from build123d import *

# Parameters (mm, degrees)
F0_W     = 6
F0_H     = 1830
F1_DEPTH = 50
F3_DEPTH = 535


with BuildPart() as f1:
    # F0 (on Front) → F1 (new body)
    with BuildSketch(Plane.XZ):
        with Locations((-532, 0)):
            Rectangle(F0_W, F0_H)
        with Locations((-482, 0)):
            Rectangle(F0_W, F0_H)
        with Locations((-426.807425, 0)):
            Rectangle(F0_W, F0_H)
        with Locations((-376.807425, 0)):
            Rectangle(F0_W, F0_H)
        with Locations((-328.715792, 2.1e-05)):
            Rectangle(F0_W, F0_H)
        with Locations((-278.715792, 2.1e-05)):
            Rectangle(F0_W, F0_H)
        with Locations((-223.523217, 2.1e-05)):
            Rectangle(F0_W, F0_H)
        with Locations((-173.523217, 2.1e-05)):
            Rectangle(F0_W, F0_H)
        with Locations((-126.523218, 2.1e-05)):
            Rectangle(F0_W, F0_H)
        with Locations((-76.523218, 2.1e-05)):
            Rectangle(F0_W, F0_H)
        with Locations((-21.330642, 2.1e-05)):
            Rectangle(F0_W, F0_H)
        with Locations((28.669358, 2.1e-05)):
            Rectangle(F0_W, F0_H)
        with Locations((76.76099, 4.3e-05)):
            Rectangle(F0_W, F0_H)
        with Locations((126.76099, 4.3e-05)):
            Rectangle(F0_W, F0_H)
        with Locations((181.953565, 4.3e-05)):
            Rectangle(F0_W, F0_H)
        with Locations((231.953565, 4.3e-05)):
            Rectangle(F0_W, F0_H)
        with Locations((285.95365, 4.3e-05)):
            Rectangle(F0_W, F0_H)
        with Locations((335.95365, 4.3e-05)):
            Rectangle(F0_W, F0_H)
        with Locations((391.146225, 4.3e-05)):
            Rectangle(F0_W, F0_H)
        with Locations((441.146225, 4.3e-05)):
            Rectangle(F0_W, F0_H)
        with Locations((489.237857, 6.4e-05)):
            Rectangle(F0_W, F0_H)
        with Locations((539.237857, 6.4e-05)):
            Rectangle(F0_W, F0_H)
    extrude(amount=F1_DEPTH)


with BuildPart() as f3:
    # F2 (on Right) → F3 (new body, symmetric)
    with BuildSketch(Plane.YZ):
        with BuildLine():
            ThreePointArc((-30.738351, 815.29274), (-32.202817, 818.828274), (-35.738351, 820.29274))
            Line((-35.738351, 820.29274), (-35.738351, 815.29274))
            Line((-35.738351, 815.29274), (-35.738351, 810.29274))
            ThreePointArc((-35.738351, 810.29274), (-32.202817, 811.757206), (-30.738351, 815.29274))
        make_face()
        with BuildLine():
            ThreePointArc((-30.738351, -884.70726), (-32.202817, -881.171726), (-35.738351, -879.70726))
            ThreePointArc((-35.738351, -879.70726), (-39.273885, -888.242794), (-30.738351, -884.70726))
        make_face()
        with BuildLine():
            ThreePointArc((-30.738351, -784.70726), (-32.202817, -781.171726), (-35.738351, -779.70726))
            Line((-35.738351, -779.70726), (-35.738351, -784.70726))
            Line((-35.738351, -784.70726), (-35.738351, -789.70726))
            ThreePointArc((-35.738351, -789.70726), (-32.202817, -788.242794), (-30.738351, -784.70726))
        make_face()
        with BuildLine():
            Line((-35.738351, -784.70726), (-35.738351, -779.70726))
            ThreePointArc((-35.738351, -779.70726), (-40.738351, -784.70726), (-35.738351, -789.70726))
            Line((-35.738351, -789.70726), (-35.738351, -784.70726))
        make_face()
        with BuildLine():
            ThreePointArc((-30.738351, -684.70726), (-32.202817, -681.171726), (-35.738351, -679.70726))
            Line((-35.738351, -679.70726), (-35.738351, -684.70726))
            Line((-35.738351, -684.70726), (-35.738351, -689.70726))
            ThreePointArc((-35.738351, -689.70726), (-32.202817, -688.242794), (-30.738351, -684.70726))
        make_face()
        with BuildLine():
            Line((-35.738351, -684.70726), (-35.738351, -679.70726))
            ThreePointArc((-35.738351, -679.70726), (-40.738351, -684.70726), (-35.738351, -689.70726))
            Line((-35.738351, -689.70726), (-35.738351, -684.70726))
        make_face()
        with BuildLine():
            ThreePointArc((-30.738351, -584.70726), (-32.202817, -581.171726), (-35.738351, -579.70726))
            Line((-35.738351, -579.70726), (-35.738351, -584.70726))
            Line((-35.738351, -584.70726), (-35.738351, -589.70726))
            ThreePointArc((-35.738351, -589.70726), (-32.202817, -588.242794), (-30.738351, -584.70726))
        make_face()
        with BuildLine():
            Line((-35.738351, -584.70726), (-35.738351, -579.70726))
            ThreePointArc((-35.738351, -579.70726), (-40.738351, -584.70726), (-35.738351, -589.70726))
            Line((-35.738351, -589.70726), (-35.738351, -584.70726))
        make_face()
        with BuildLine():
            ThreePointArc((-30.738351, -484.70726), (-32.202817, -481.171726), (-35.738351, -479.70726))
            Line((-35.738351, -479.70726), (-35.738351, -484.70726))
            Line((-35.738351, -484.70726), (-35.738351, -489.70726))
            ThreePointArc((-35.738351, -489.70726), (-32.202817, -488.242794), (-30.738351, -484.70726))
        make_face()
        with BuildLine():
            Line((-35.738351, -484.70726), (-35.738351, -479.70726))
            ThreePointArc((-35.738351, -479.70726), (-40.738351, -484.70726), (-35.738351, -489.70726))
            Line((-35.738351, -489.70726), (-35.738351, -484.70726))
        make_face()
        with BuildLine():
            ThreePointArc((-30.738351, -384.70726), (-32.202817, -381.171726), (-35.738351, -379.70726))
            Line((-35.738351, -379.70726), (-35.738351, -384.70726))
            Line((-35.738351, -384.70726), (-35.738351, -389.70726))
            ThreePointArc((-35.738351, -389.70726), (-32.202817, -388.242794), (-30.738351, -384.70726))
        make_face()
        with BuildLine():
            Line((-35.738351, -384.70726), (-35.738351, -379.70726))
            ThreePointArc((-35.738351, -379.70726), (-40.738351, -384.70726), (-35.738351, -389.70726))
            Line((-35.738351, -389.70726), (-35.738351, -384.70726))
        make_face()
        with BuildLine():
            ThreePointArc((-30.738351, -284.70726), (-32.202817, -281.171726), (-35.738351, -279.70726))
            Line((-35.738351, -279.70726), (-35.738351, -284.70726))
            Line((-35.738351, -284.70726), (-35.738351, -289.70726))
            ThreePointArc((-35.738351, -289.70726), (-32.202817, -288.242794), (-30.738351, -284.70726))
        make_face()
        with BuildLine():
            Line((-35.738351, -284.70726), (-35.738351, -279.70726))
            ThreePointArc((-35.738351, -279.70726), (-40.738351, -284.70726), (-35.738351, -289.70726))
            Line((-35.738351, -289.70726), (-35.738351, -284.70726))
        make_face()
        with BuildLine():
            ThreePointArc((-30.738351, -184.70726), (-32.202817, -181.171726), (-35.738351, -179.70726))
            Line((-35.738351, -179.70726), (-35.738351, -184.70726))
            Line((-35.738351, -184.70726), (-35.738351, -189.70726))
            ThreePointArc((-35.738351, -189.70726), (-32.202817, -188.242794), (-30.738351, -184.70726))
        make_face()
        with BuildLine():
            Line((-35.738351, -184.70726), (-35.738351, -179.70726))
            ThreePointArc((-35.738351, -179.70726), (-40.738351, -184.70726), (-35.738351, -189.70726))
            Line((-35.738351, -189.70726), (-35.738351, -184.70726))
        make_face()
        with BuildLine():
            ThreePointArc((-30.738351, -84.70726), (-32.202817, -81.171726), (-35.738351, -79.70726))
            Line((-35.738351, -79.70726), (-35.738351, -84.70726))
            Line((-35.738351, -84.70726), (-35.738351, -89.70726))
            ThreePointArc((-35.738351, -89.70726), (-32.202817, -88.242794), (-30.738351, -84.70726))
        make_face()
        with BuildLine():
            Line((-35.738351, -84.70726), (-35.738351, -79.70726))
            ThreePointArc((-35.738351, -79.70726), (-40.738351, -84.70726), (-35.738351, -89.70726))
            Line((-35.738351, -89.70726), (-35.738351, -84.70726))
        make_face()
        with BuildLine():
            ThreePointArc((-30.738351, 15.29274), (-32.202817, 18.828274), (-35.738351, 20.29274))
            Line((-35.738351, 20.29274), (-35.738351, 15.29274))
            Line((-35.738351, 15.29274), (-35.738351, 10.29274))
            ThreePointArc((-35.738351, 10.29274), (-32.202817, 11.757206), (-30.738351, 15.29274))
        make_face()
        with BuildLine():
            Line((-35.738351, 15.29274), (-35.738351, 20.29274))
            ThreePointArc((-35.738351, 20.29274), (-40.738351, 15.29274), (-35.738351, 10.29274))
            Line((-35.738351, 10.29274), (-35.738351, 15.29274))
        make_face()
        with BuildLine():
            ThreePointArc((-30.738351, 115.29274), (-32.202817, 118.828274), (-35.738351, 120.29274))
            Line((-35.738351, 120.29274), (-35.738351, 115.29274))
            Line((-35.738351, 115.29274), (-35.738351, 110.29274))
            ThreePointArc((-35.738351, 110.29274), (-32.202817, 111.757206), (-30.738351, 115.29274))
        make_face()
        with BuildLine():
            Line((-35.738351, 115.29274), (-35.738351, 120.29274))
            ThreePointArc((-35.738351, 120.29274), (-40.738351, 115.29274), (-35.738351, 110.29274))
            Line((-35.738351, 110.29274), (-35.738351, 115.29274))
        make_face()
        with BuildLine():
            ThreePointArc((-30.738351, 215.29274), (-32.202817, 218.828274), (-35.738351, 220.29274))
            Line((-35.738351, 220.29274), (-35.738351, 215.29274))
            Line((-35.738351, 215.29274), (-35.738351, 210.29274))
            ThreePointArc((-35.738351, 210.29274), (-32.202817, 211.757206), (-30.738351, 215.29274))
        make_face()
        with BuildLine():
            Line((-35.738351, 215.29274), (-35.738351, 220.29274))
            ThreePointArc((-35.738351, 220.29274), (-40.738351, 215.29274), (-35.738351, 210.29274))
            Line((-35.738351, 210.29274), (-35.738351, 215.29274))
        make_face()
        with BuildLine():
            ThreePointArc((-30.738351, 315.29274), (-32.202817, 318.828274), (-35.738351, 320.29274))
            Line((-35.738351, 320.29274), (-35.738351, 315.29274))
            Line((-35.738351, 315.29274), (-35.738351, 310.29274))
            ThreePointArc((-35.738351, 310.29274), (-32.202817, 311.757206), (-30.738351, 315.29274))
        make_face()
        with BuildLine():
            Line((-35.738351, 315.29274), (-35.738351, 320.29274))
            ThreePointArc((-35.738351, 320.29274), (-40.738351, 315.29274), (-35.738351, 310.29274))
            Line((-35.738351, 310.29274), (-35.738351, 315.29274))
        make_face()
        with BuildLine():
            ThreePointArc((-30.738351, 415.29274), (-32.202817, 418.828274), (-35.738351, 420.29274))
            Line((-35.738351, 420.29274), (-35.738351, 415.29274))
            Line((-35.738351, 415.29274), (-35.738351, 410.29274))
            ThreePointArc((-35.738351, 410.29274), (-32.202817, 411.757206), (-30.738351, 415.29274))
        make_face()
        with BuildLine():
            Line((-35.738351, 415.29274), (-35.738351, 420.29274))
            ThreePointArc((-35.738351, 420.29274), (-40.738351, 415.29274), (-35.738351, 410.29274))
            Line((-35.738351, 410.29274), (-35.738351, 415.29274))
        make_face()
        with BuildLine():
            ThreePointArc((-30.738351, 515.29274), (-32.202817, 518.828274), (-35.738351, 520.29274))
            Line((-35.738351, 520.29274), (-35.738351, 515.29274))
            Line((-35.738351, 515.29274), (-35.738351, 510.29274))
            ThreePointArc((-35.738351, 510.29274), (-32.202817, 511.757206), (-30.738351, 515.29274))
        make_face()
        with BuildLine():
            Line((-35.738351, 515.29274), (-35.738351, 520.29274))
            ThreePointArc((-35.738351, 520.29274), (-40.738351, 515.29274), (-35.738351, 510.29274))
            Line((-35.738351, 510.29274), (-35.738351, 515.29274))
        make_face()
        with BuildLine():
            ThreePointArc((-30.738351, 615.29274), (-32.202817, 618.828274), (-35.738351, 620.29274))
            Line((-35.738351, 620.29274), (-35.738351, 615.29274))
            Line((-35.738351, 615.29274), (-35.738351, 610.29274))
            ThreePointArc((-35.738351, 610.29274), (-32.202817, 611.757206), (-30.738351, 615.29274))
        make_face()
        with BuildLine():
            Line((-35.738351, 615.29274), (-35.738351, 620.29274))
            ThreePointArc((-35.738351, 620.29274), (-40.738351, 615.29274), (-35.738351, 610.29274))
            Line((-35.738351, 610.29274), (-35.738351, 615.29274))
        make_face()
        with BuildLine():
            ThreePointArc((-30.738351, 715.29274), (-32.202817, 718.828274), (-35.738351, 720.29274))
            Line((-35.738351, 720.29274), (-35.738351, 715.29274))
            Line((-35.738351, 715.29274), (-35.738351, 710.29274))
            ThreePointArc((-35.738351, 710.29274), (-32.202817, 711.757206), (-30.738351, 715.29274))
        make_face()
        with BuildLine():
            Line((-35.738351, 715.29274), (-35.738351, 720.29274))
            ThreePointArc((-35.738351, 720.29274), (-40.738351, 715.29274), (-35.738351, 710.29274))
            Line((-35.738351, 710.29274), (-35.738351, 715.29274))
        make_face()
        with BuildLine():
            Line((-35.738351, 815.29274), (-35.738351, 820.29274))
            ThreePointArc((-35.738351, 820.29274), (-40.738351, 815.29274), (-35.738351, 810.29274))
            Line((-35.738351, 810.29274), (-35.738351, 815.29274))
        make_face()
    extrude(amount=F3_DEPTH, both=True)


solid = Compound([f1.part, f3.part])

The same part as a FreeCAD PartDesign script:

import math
import FreeCAD as App
import Part
import Sketcher

doc = App.newDocument("Part")
body = doc.addObject("PartDesign::Body", "Body")
body.AllowCompound = True

# Sketch on XZ plane
sketch1 = body.newObject("Sketcher::SketchObject", "Sketch")
sketch1.AttachmentSupport = (doc.getObject("XZ_Plane"), [""])
sketch1.MapMode = "FlatFace"
sketch1.addGeometry([
    Part.LineSegment(App.Vector(-535, 915, 0), App.Vector(-535, -915, 0)),  # 0
    Part.LineSegment(App.Vector(-535, -915, 0), App.Vector(-529, -915, 0)),  # 1
    Part.LineSegment(App.Vector(-529, -915, 0), App.Vector(-529, 915, 0)),  # 2
    Part.LineSegment(App.Vector(-529, 915, 0), App.Vector(-535, 915, 0)),  # 3
    Part.LineSegment(App.Vector(-485, 915, 0), App.Vector(-485, -915, 0)),  # 4
    Part.LineSegment(App.Vector(-485, -915, 0), App.Vector(-479, -915, 0)),  # 5
    Part.LineSegment(App.Vector(-479, -915, 0), App.Vector(-479, 915, 0)),  # 6
    Part.LineSegment(App.Vector(-479, 915, 0), App.Vector(-485, 915, 0)),  # 7
    Part.LineSegment(App.Vector(-429.807425, 915, 0), App.Vector(-429.807425, -915, 0)),  # 8
    Part.LineSegment(App.Vector(-429.807425, -915, 0), App.Vector(-423.807425, -915, 0)),  # 9
    Part.LineSegment(App.Vector(-423.807425, -915, 0), App.Vector(-423.807425, 915, 0)),  # 10
    Part.LineSegment(App.Vector(-423.807425, 915, 0), App.Vector(-429.807425, 915, 0)),  # 11
    Part.LineSegment(App.Vector(-379.807425, 915, 0), App.Vector(-379.807425, -915, 0)),  # 12
    Part.LineSegment(App.Vector(-379.807425, -915, 0), App.Vector(-373.807425, -915, 0)),  # 13
    Part.LineSegment(App.Vector(-373.807425, -915, 0), App.Vector(-373.807425, 915, 0)),  # 14
    Part.LineSegment(App.Vector(-373.807425, 915, 0), App.Vector(-379.807425, 915, 0)),  # 15
    Part.LineSegment(App.Vector(-331.715792, 915.000021, 0), App.Vector(-331.715792, -914.999979, 0)),  # 16
    Part.LineSegment(App.Vector(-331.715792, -914.999979, 0), App.Vector(-325.715792, -914.999979, 0)),  # 17
    Part.LineSegment(App.Vector(-325.715792, -914.999979, 0), App.Vector(-325.715792, 915.000021, 0)),  # 18
    Part.LineSegment(App.Vector(-325.715792, 915.000021, 0), App.Vector(-331.715792, 915.000021, 0)),  # 19
    Part.LineSegment(App.Vector(-281.715792, 915.000021, 0), App.Vector(-281.715792, -914.999979, 0)),  # 20
    Part.LineSegment(App.Vector(-281.715792, -914.999979, 0), App.Vector(-275.715792, -914.999979, 0)),  # 21
    Part.LineSegment(App.Vector(-275.715792, -914.999979, 0), App.Vector(-275.715792, 915.000021, 0)),  # 22
    Part.LineSegment(App.Vector(-275.715792, 915.000021, 0), App.Vector(-281.715792, 915.000021, 0)),  # 23
    Part.LineSegment(App.Vector(-226.523217, 915.000021, 0), App.Vector(-226.523217, -914.999979, 0)),  # 24
    Part.LineSegment(App.Vector(-226.523217, -914.999979, 0), App.Vector(-220.523217, -914.999979, 0)),  # 25
    Part.LineSegment(App.Vector(-220.523217, -914.999979, 0), App.Vector(-220.523217, 915.000021, 0)),  # 26
    Part.LineSegment(App.Vector(-220.523217, 915.000021, 0), App.Vector(-226.523217, 915.000021, 0)),  # 27
    Part.LineSegment(App.Vector(-176.523217, 915.000021, 0), App.Vector(-176.523217, -914.999979, 0)),  # 28
    Part.LineSegment(App.Vector(-176.523217, -914.999979, 0), App.Vector(-170.523217, -914.999979, 0)),  # 29
    Part.LineSegment(App.Vector(-170.523217, -914.999979, 0), App.Vector(-170.523217, 915.000021, 0)),  # 30
    Part.LineSegment(App.Vector(-170.523217, 915.000021, 0), App.Vector(-176.523217, 915.000021, 0)),  # 31
    Part.LineSegment(App.Vector(-129.523218, 915.000021, 0), App.Vector(-129.523218, -914.999979, 0)),  # 32
    Part.LineSegment(App.Vector(-129.523218, -914.999979, 0), App.Vector(-123.523218, -914.999979, 0)),  # 33
    Part.LineSegment(App.Vector(-123.523218, -914.999979, 0), App.Vector(-123.523218, 915.000021, 0)),  # 34
    Part.LineSegment(App.Vector(-123.523218, 915.000021, 0), App.Vector(-129.523218, 915.000021, 0)),  # 35
    Part.LineSegment(App.Vector(-79.523218, 915.000021, 0), App.Vector(-79.523218, -914.999979, 0)),  # 36
    Part.LineSegment(App.Vector(-79.523218, -914.999979, 0), App.Vector(-73.523218, -914.999979, 0)),  # 37
    Part.LineSegment(App.Vector(-73.523218, -914.999979, 0), App.Vector(-73.523218, 915.000021, 0)),  # 38
    Part.LineSegment(App.Vector(-73.523218, 915.000021, 0), App.Vector(-79.523218, 915.000021, 0)),  # 39
    Part.LineSegment(App.Vector(-24.330642, 915.000021, 0), App.Vector(-24.330642, -914.999979, 0)),  # 40
    Part.LineSegment(App.Vector(-24.330642, -914.999979, 0), App.Vector(-18.330642, -914.999979, 0)),  # 41
    Part.LineSegment(App.Vector(-18.330642, -914.999979, 0), App.Vector(-18.330642, 915.000021, 0)),  # 42
    Part.LineSegment(App.Vector(-18.330642, 915.000021, 0), App.Vector(-24.330642, 915.000021, 0)),  # 43
    Part.LineSegment(App.Vector(25.669358, 915.000021, 0), App.Vector(25.669358, -914.999979, 0)),  # 44
    Part.LineSegment(App.Vector(25.669358, -914.999979, 0), App.Vector(31.669358, -914.999979, 0)),  # 45
    Part.LineSegment(App.Vector(31.669358, -914.999979, 0), App.Vector(31.669358, 915.000021, 0)),  # 46
    Part.LineSegment(App.Vector(31.669358, 915.000021, 0), App.Vector(25.669358, 915.000021, 0)),  # 47
    Part.LineSegment(App.Vector(73.76099, 915.000043, 0), App.Vector(73.76099, -914.999957, 0)),  # 48
    Part.LineSegment(App.Vector(73.76099, -914.999957, 0), App.Vector(79.76099, -914.999957, 0)),  # 49
    Part.LineSegment(App.Vector(79.76099, -914.999957, 0), App.Vector(79.76099, 915.000043, 0)),  # 50
    Part.LineSegment(App.Vector(79.76099, 915.000043, 0), App.Vector(73.76099, 915.000043, 0)),  # 51
    Part.LineSegment(App.Vector(123.76099, 915.000043, 0), App.Vector(123.76099, -914.999957, 0)),  # 52
    Part.LineSegment(App.Vector(123.76099, -914.999957, 0), App.Vector(129.76099, -914.999957, 0)),  # 53
    Part.LineSegment(App.Vector(129.76099, -914.999957, 0), App.Vector(129.76099, 915.000043, 0)),  # 54
    Part.LineSegment(App.Vector(129.76099, 915.000043, 0), App.Vector(123.76099, 915.000043, 0)),  # 55
    Part.LineSegment(App.Vector(178.953565, 915.000043, 0), App.Vector(178.953565, -914.999957, 0)),  # 56
    Part.LineSegment(App.Vector(178.953565, -914.999957, 0), App.Vector(184.953565, -914.999957, 0)),  # 57
    Part.LineSegment(App.Vector(184.953565, -914.999957, 0), App.Vector(184.953565, 915.000043, 0)),  # 58
    Part.LineSegment(App.Vector(184.953565, 915.000043, 0), App.Vector(178.953565, 915.000043, 0)),  # 59
    Part.LineSegment(App.Vector(228.953565, 915.000043, 0), App.Vector(228.953565, -914.999957, 0)),  # 60
    Part.LineSegment(App.Vector(228.953565, -914.999957, 0), App.Vector(234.953565, -914.999957, 0)),  # 61
    Part.LineSegment(App.Vector(234.953565, -914.999957, 0), App.Vector(234.953565, 915.000043, 0)),  # 62
    Part.LineSegment(App.Vector(234.953565, 915.000043, 0), App.Vector(228.953565, 915.000043, 0)),  # 63
    Part.LineSegment(App.Vector(282.95365, 915.000043, 0), App.Vector(282.95365, -914.999957, 0)),  # 64
    Part.LineSegment(App.Vector(282.95365, -914.999957, 0), App.Vector(288.95365, -914.999957, 0)),  # 65
    Part.LineSegment(App.Vector(288.95365, -914.999957, 0), App.Vector(288.95365, 915.000043, 0)),  # 66
    Part.LineSegment(App.Vector(288.95365, 915.000043, 0), App.Vector(282.95365, 915.000043, 0)),  # 67
    Part.LineSegment(App.Vector(332.95365, 915.000043, 0), App.Vector(332.95365, -914.999957, 0)),  # 68
    Part.LineSegment(App.Vector(332.95365, -914.999957, 0), App.Vector(338.95365, -914.999957, 0)),  # 69
    Part.LineSegment(App.Vector(338.95365, -914.999957, 0), App.Vector(338.95365, 915.000043, 0)),  # 70
    Part.LineSegment(App.Vector(338.95365, 915.000043, 0), App.Vector(332.95365, 915.000043, 0)),  # 71
    Part.LineSegment(App.Vector(388.146225, 915.000043, 0), App.Vector(388.146225, -914.999957, 0)),  # 72
    Part.LineSegment(App.Vector(388.146225, -914.999957, 0), App.Vector(394.146225, -914.999957, 0)),  # 73
    Part.LineSegment(App.Vector(394.146225, -914.999957, 0), App.Vector(394.146225, 915.000043, 0)),  # 74
    Part.LineSegment(App.Vector(394.146225, 915.000043, 0), App.Vector(388.146225, 915.000043, 0)),  # 75
    Part.LineSegment(App.Vector(438.146225, 915.000043, 0), App.Vector(438.146225, -914.999957, 0)),  # 76
    Part.LineSegment(App.Vector(438.146225, -914.999957, 0), App.Vector(444.146225, -914.999957, 0)),  # 77
    Part.LineSegment(App.Vector(444.146225, -914.999957, 0), App.Vector(444.146225, 915.000043, 0)),  # 78
    Part.LineSegment(App.Vector(444.146225, 915.000043, 0), App.Vector(438.146225, 915.000043, 0)),  # 79
    Part.LineSegment(App.Vector(486.237857, 915.000064, 0), App.Vector(486.237857, -914.999936, 0)),  # 80
    Part.LineSegment(App.Vector(486.237857, -914.999936, 0), App.Vector(492.237857, -914.999936, 0)),  # 81
    Part.LineSegment(App.Vector(492.237857, -914.999936, 0), App.Vector(492.237857, 915.000064, 0)),  # 82
    Part.LineSegment(App.Vector(492.237857, 915.000064, 0), App.Vector(486.237857, 915.000064, 0)),  # 83
    Part.LineSegment(App.Vector(536.237857, 915.000064, 0), App.Vector(536.237857, -914.999936, 0)),  # 84
    Part.LineSegment(App.Vector(536.237857, -914.999936, 0), App.Vector(542.237857, -914.999936, 0)),  # 85
    Part.LineSegment(App.Vector(542.237857, -914.999936, 0), App.Vector(542.237857, 915.000064, 0)),  # 86
    Part.LineSegment(App.Vector(542.237857, 915.000064, 0), App.Vector(536.237857, 915.000064, 0)),  # 87
], False)
sketch1.addConstraint([
    Sketcher.Constraint("Coincident", 0, 2, 1, 1),
    Sketcher.Constraint("Coincident", 1, 2, 2, 1),
    Sketcher.Constraint("Coincident", 2, 2, 3, 1),
    Sketcher.Constraint("Coincident", 3, 2, 0, 1),
    Sketcher.Constraint("Coincident", 4, 2, 5, 1),
    Sketcher.Constraint("Coincident", 5, 2, 6, 1),
    Sketcher.Constraint("Coincident", 6, 2, 7, 1),
    Sketcher.Constraint("Coincident", 7, 2, 4, 1),
    Sketcher.Constraint("Coincident", 8, 2, 9, 1),
    Sketcher.Constraint("Coincident", 9, 2, 10, 1),
    Sketcher.Constraint("Coincident", 10, 2, 11, 1),
    Sketcher.Constraint("Coincident", 11, 2, 8, 1),
    Sketcher.Constraint("Coincident", 12, 2, 13, 1),
    Sketcher.Constraint("Coincident", 13, 2, 14, 1),
    Sketcher.Constraint("Coincident", 14, 2, 15, 1),
    Sketcher.Constraint("Coincident", 15, 2, 12, 1),
    Sketcher.Constraint("Coincident", 16, 2, 17, 1),
    Sketcher.Constraint("Coincident", 17, 2, 18, 1),
    Sketcher.Constraint("Coincident", 18, 2, 19, 1),
    Sketcher.Constraint("Coincident", 19, 2, 16, 1),
    Sketcher.Constraint("Coincident", 20, 2, 21, 1),
    Sketcher.Constraint("Coincident", 21, 2, 22, 1),
    Sketcher.Constraint("Coincident", 22, 2, 23, 1),
    Sketcher.Constraint("Coincident", 23, 2, 20, 1),
    Sketcher.Constraint("Coincident", 24, 2, 25, 1),
    Sketcher.Constraint("Coincident", 25, 2, 26, 1),
    Sketcher.Constraint("Coincident", 26, 2, 27, 1),
    Sketcher.Constraint("Coincident", 27, 2, 24, 1),
    Sketcher.Constraint("Coincident", 28, 2, 29, 1),
    Sketcher.Constraint("Coincident", 29, 2, 30, 1),
    Sketcher.Constraint("Coincident", 30, 2, 31, 1),
    Sketcher.Constraint("Coincident", 31, 2, 28, 1),
    Sketcher.Constraint("Coincident", 32, 2, 33, 1),
    Sketcher.Constraint("Coincident", 33, 2, 34, 1),
    Sketcher.Constraint("Coincident", 34, 2, 35, 1),
    Sketcher.Constraint("Coincident", 35, 2, 32, 1),
    Sketcher.Constraint("Coincident", 36, 2, 37, 1),
    Sketcher.Constraint("Coincident", 37, 2, 38, 1),
    Sketcher.Constraint("Coincident", 38, 2, 39, 1),
    Sketcher.Constraint("Coincident", 39, 2, 36, 1),
    Sketcher.Constraint("Coincident", 40, 2, 41, 1),
    Sketcher.Constraint("Coincident", 41, 2, 42, 1),
    Sketcher.Constraint("Coincident", 42, 2, 43, 1),
    Sketcher.Constraint("Coincident", 43, 2, 40, 1),
    Sketcher.Constraint("Coincident", 44, 2, 45, 1),
    Sketcher.Constraint("Coincident", 45, 2, 46, 1),
    Sketcher.Constraint("Coincident", 46, 2, 47, 1),
    Sketcher.Constraint("Coincident", 47, 2, 44, 1),
    Sketcher.Constraint("Coincident", 48, 2, 49, 1),
    Sketcher.Constraint("Coincident", 49, 2, 50, 1),
    Sketcher.Constraint("Coincident", 50, 2, 51, 1),
    Sketcher.Constraint("Coincident", 51, 2, 48, 1),
    Sketcher.Constraint("Coincident", 52, 2, 53, 1),
    Sketcher.Constraint("Coincident", 53, 2, 54, 1),
    Sketcher.Constraint("Coincident", 54, 2, 55, 1),
    Sketcher.Constraint("Coincident", 55, 2, 52, 1),
    Sketcher.Constraint("Coincident", 56, 2, 57, 1),
    Sketcher.Constraint("Coincident", 57, 2, 58, 1),
    Sketcher.Constraint("Coincident", 58, 2, 59, 1),
    Sketcher.Constraint("Coincident", 59, 2, 56, 1),
    Sketcher.Constraint("Coincident", 60, 2, 61, 1),
    Sketcher.Constraint("Coincident", 61, 2, 62, 1),
    Sketcher.Constraint("Coincident", 62, 2, 63, 1),
    Sketcher.Constraint("Coincident", 63, 2, 60, 1),
    Sketcher.Constraint("Coincident", 64, 2, 65, 1),
    Sketcher.Constraint("Coincident", 65, 2, 66, 1),
    Sketcher.Constraint("Coincident", 66, 2, 67, 1),
    Sketcher.Constraint("Coincident", 67, 2, 64, 1),
    Sketcher.Constraint("Coincident", 68, 2, 69, 1),
    Sketcher.Constraint("Coincident", 69, 2, 70, 1),
    Sketcher.Constraint("Coincident", 70, 2, 71, 1),
    Sketcher.Constraint("Coincident", 71, 2, 68, 1),
    Sketcher.Constraint("Coincident", 72, 2, 73, 1),
    Sketcher.Constraint("Coincident", 73, 2, 74, 1),
    Sketcher.Constraint("Coincident", 74, 2, 75, 1),
    Sketcher.Constraint("Coincident", 75, 2, 72, 1),
    Sketcher.Constraint("Coincident", 76, 2, 77, 1),
    Sketcher.Constraint("Coincident", 77, 2, 78, 1),
    Sketcher.Constraint("Coincident", 78, 2, 79, 1),
    Sketcher.Constraint("Coincident", 79, 2, 76, 1),
    Sketcher.Constraint("Coincident", 80, 2, 81, 1),
    Sketcher.Constraint("Coincident", 81, 2, 82, 1),
    Sketcher.Constraint("Coincident", 82, 2, 83, 1),
    Sketcher.Constraint("Coincident", 83, 2, 80, 1),
    Sketcher.Constraint("Coincident", 84, 2, 85, 1),
    Sketcher.Constraint("Coincident", 85, 2, 86, 1),
    Sketcher.Constraint("Coincident", 86, 2, 87, 1),
    Sketcher.Constraint("Coincident", 87, 2, 84, 1),
    Sketcher.Constraint("Vertical", 0),
    Sketcher.Constraint("Horizontal", 1),
    Sketcher.Constraint("Vertical", 2),
    Sketcher.Constraint("Horizontal", 3),
    Sketcher.Constraint("Vertical", 4),
    Sketcher.Constraint("Horizontal", 5),
    Sketcher.Constraint("Vertical", 6),
    Sketcher.Constraint("Horizontal", 7),
    Sketcher.Constraint("Vertical", 8),
    Sketcher.Constraint("Horizontal", 9),
    Sketcher.Constraint("Vertical", 10),
    Sketcher.Constraint("Horizontal", 11),
    Sketcher.Constraint("Vertical", 12),
    Sketcher.Constraint("Horizontal", 13),
    Sketcher.Constraint("Vertical", 14),
    Sketcher.Constraint("Horizontal", 15),
    Sketcher.Constraint("Vertical", 16),
    Sketcher.Constraint("Horizontal", 17),
    Sketcher.Constraint("Vertical", 18),
    Sketcher.Constraint("Horizontal", 19),
    Sketcher.Constraint("Vertical", 20),
    Sketcher.Constraint("Horizontal", 21),
    Sketcher.Constraint("Vertical", 22),
    Sketcher.Constraint("Horizontal", 23),
    Sketcher.Constraint("Vertical", 24),
    Sketcher.Constraint("Horizontal", 25),
    Sketcher.Constraint("Vertical", 26),
    Sketcher.Constraint("Horizontal", 27),
    Sketcher.Constraint("Vertical", 28),
    Sketcher.Constraint("Horizontal", 29),
    Sketcher.Constraint("Vertical", 30),
    Sketcher.Constraint("Horizontal", 31),
    Sketcher.Constraint("Vertical", 32),
    Sketcher.Constraint("Horizontal", 33),
    Sketcher.Constraint("Vertical", 34),
    Sketcher.Constraint("Horizontal", 35),
    Sketcher.Constraint("Vertical", 36),
    Sketcher.Constraint("Horizontal", 37),
    Sketcher.Constraint("Vertical", 38),
    Sketcher.Constraint("Horizontal", 39),
    Sketcher.Constraint("Vertical", 40),
    Sketcher.Constraint("Horizontal", 41),
    Sketcher.Constraint("Vertical", 42),
    Sketcher.Constraint("Horizontal", 43),
    Sketcher.Constraint("Vertical", 44),
    Sketcher.Constraint("Horizontal", 45),
    Sketcher.Constraint("Vertical", 46),
    Sketcher.Constraint("Horizontal", 47),
    Sketcher.Constraint("Vertical", 48),
    Sketcher.Constraint("Horizontal", 49),
    Sketcher.Constraint("Vertical", 50),
    Sketcher.Constraint("Horizontal", 51),
    Sketcher.Constraint("Vertical", 52),
    Sketcher.Constraint("Horizontal", 53),
    Sketcher.Constraint("Vertical", 54),
    Sketcher.Constraint("Horizontal", 55),
    Sketcher.Constraint("Vertical", 56),
    Sketcher.Constraint("Horizontal", 57),
    Sketcher.Constraint("Vertical", 58),
    Sketcher.Constraint("Horizontal", 59),
    Sketcher.Constraint("Vertical", 60),
    Sketcher.Constraint("Horizontal", 61),
    Sketcher.Constraint("Vertical", 62),
    Sketcher.Constraint("Horizontal", 63),
    Sketcher.Constraint("Vertical", 64),
    Sketcher.Constraint("Horizontal", 65),
    Sketcher.Constraint("Vertical", 66),
    Sketcher.Constraint("Horizontal", 67),
    Sketcher.Constraint("Vertical", 68),
    Sketcher.Constraint("Horizontal", 69),
    Sketcher.Constraint("Vertical", 70),
    Sketcher.Constraint("Horizontal", 71),
    Sketcher.Constraint("Vertical", 72),
    Sketcher.Constraint("Horizontal", 73),
    Sketcher.Constraint("Vertical", 74),
    Sketcher.Constraint("Horizontal", 75),
    Sketcher.Constraint("Vertical", 76),
    Sketcher.Constraint("Horizontal", 77),
    Sketcher.Constraint("Vertical", 78),
    Sketcher.Constraint("Horizontal", 79),
    Sketcher.Constraint("Vertical", 80),
    Sketcher.Constraint("Horizontal", 81),
    Sketcher.Constraint("Vertical", 82),
    Sketcher.Constraint("Horizontal", 83),
    Sketcher.Constraint("Vertical", 84),
    Sketcher.Constraint("Horizontal", 85),
    Sketcher.Constraint("Vertical", 86),
    Sketcher.Constraint("Horizontal", 87),
    Sketcher.Constraint("Horizontal", 1, 2, 4, 2),
    Sketcher.Constraint("Horizontal", 3, 2, 6, 2),
    Sketcher.Constraint("Horizontal", 5, 2, 8, 2),
    Sketcher.Constraint("Horizontal", 7, 2, 10, 2),
    Sketcher.Constraint("Horizontal", 9, 2, 12, 2),
    Sketcher.Constraint("Horizontal", 11, 2, 14, 2),
    Sketcher.Constraint("Horizontal", 17, 2, 20, 2),
    Sketcher.Constraint("Horizontal", 19, 2, 22, 2),
    Sketcher.Constraint("Horizontal", 21, 2, 24, 2),
    Sketcher.Constraint("Horizontal", 23, 2, 26, 2),
    Sketcher.Constraint("Horizontal", 25, 2, 28, 2),
    Sketcher.Constraint("Horizontal", 27, 2, 30, 2),
    Sketcher.Constraint("Horizontal", 29, 2, 32, 2),
    Sketcher.Constraint("Horizontal", 31, 2, 34, 2),
    Sketcher.Constraint("Horizontal", 33, 2, 36, 2),
    Sketcher.Constraint("Horizontal", 35, 2, 38, 2),
    Sketcher.Constraint("Horizontal", 37, 2, 40, 2),
    Sketcher.Constraint("Horizontal", 39, 2, 42, 2),
    Sketcher.Constraint("Horizontal", 41, 2, 44, 2),
    Sketcher.Constraint("Horizontal", 43, 2, 46, 2),
    Sketcher.Constraint("Horizontal", 49, 2, 52, 2),
    Sketcher.Constraint("Horizontal", 51, 2, 54, 2),
    Sketcher.Constraint("Horizontal", 53, 2, 56, 2),
    Sketcher.Constraint("Horizontal", 55, 2, 58, 2),
    Sketcher.Constraint("Horizontal", 57, 2, 60, 2),
    Sketcher.Constraint("Horizontal", 59, 2, 62, 2),
    Sketcher.Constraint("Horizontal", 61, 2, 64, 2),
    Sketcher.Constraint("Horizontal", 63, 2, 66, 2),
    Sketcher.Constraint("Horizontal", 65, 2, 68, 2),
    Sketcher.Constraint("Horizontal", 67, 2, 70, 2),
    Sketcher.Constraint("Horizontal", 69, 2, 72, 2),
    Sketcher.Constraint("Horizontal", 71, 2, 74, 2),
    Sketcher.Constraint("Horizontal", 73, 2, 76, 2),
    Sketcher.Constraint("Horizontal", 75, 2, 78, 2),
    Sketcher.Constraint("Horizontal", 81, 2, 84, 2),
    Sketcher.Constraint("Horizontal", 83, 2, 86, 2),
    Sketcher.Constraint("Equal", 3, 5),
    Sketcher.Constraint("Equal", 7, 9),
    Sketcher.Constraint("Equal", 11, 13),
    Sketcher.Constraint("Equal", 15, 17),
    Sketcher.Constraint("Equal", 19, 21),
    Sketcher.Constraint("Equal", 23, 25),
    Sketcher.Constraint("Equal", 27, 29),
    Sketcher.Constraint("Equal", 31, 33),
    Sketcher.Constraint("Equal", 35, 37),
    Sketcher.Constraint("Equal", 39, 41),
    Sketcher.Constraint("Equal", 43, 45),
    Sketcher.Constraint("Equal", 47, 49),
    Sketcher.Constraint("Equal", 51, 53),
    Sketcher.Constraint("Equal", 55, 57),
    Sketcher.Constraint("Equal", 59, 61),
    Sketcher.Constraint("Equal", 63, 65),
    Sketcher.Constraint("Equal", 67, 69),
    Sketcher.Constraint("Equal", 71, 73),
    Sketcher.Constraint("Equal", 75, 77),
    Sketcher.Constraint("Equal", 79, 81),
    Sketcher.Constraint("Equal", 83, 85),
    Sketcher.Constraint("Equal", 14, 16),
    Sketcher.Constraint("Equal", 46, 48),
    Sketcher.Constraint("Equal", 78, 80),
    Sketcher.Constraint("DistanceX", 1, 1, 1, 2, 6.0),
    Sketcher.Constraint("DistanceY", 0, 2, 0, 1, 1830.0),
    Sketcher.Constraint("DistanceX", 0, 2, -1, 1, 535.0),
    Sketcher.Constraint("DistanceY", 0, 2, -1, 1, 915.0),
    Sketcher.Constraint("DistanceX", 4, 2, -1, 1, 485.0),
    Sketcher.Constraint("DistanceX", 16, 2, -1, 1, 331.715792),
    Sketcher.Constraint("DistanceY", 16, 2, -1, 1, 914.999979),
    Sketcher.Constraint("DistanceX", 20, 2, -1, 1, 281.715792),
    Sketcher.Constraint("DistanceX", 32, 2, -1, 1, 129.523218),
    Sketcher.Constraint("DistanceX", 36, 2, -1, 1, 79.523218),
    Sketcher.Constraint("DistanceX", -1, 1, 48, 2, 73.76099),
    Sketcher.Constraint("DistanceX", -1, 1, 52, 2, 123.76099),
    Sketcher.Constraint("DistanceX", -1, 1, 64, 2, 282.95365),
    Sketcher.Constraint("DistanceX", -1, 1, 68, 2, 332.95365),
    Sketcher.Constraint("DistanceX", 8, 2, -1, 1, 429.807425),
    Sketcher.Constraint("DistanceX", 12, 2, -1, 1, 379.807425),
    Sketcher.Constraint("DistanceX", 24, 2, -1, 1, 226.523217),
    Sketcher.Constraint("DistanceX", 28, 2, -1, 1, 176.523217),
    Sketcher.Constraint("DistanceX", 40, 2, -1, 1, 24.330642),
    Sketcher.Constraint("DistanceX", -1, 1, 44, 2, 25.669358),
    Sketcher.Constraint("DistanceY", 48, 2, -1, 1, 914.999957),
    Sketcher.Constraint("DistanceX", -1, 1, 56, 2, 178.953565),
    Sketcher.Constraint("DistanceX", -1, 1, 60, 2, 228.953565),
    Sketcher.Constraint("DistanceX", -1, 1, 72, 2, 388.146225),
    Sketcher.Constraint("DistanceX", -1, 1, 76, 2, 438.146225),
    Sketcher.Constraint("DistanceX", -1, 1, 80, 2, 486.237857),
    Sketcher.Constraint("DistanceY", 80, 2, -1, 1, 914.999936),
    Sketcher.Constraint("DistanceX", -1, 1, 84, 2, 536.237857),
])
pad1 = body.newObject("PartDesign::Pad", "Pad")
pad1.Profile = sketch1
pad1.Length = 50
body2 = doc.addObject("PartDesign::Body", "Body001")
body2.AllowCompound = True

# Sketch on YZ plane
sketch2 = body2.newObject("Sketcher::SketchObject", "Sketch001")
sketch2.AttachmentSupport = (doc.getObject("YZ_Plane001"), [""])
sketch2.MapMode = "FlatFace"
sketch2.addGeometry([
    Part.ArcOfCircle(Part.Circle(App.Vector(-35.738351, 815.29274, 0), App.Vector(0, 0, 1), 5), math.radians(-0.000004), math.radians(90.000004)),  # 0
    Part.ArcOfCircle(Part.Circle(App.Vector(-35.738351, 815.29274, 0), App.Vector(0, 0, 1), 5), math.radians(90), math.radians(270)),  # 1
    Part.ArcOfCircle(Part.Circle(App.Vector(-35.738351, 815.29274, 0), App.Vector(0, 0, 1), 5), math.radians(-90.000004), math.radians(0.000004)),  # 2
    Part.ArcOfCircle(Part.Circle(App.Vector(-35.738351, -884.70726, 0), App.Vector(0, 0, 1), 5), math.radians(-0.000004), math.radians(90.000004)),  # 3
    Part.ArcOfCircle(Part.Circle(App.Vector(-35.738351, -884.70726, 0), App.Vector(0, 0, 1), 5), math.radians(89.999999), math.radians(360.000001)),  # 4
    Part.ArcOfCircle(Part.Circle(App.Vector(-35.738351, -784.70726, 0), App.Vector(0, 0, 1), 5), math.radians(-0.000004), math.radians(90.000004)),  # 5
    Part.ArcOfCircle(Part.Circle(App.Vector(-35.738351, -784.70726, 0), App.Vector(0, 0, 1), 5), math.radians(90), math.radians(270)),  # 6
    Part.ArcOfCircle(Part.Circle(App.Vector(-35.738351, -784.70726, 0), App.Vector(0, 0, 1), 5), math.radians(-90.000004), math.radians(0.000004)),  # 7
    Part.ArcOfCircle(Part.Circle(App.Vector(-35.738351, -684.70726, 0), App.Vector(0, 0, 1), 5), math.radians(-0.000004), math.radians(90.000004)),  # 8
    Part.ArcOfCircle(Part.Circle(App.Vector(-35.738351, -684.70726, 0), App.Vector(0, 0, 1), 5), math.radians(90), math.radians(270)),  # 9
    Part.ArcOfCircle(Part.Circle(App.Vector(-35.738351, -684.70726, 0), App.Vector(0, 0, 1), 5), math.radians(-90.000004), math.radians(0.000004)),  # 10
    Part.ArcOfCircle(Part.Circle(App.Vector(-35.738351, -584.70726, 0), App.Vector(0, 0, 1), 5), math.radians(-0.000004), math.radians(90.000004)),  # 11
    Part.ArcOfCircle(Part.Circle(App.Vector(-35.738351, -584.70726, 0), App.Vector(0, 0, 1), 5), math.radians(90), math.radians(270)),  # 12
    Part.ArcOfCircle(Part.Circle(App.Vector(-35.738351, -584.70726, 0), App.Vector(0, 0, 1), 5), math.radians(-90.000004), math.radians(0.000004)),  # 13
    Part.ArcOfCircle(Part.Circle(App.Vector(-35.738351, -484.70726, 0), App.Vector(0, 0, 1), 5), math.radians(-0.000004), math.radians(90.000004)),  # 14
    Part.ArcOfCircle(Part.Circle(App.Vector(-35.738351, -484.70726, 0), App.Vector(0, 0, 1), 5), math.radians(90), math.radians(270)),  # 15
    Part.ArcOfCircle(Part.Circle(App.Vector(-35.738351, -484.70726, 0), App.Vector(0, 0, 1), 5), math.radians(-90.000004), math.radians(0.000004)),  # 16
    Part.ArcOfCircle(Part.Circle(App.Vector(-35.738351, -384.70726, 0), App.Vector(0, 0, 1), 5), math.radians(-0.000004), math.radians(90.000004)),  # 17
    Part.ArcOfCircle(Part.Circle(App.Vector(-35.738351, -384.70726, 0), App.Vector(0, 0, 1), 5), math.radians(90), math.radians(270)),  # 18
    Part.ArcOfCircle(Part.Circle(App.Vector(-35.738351, -384.70726, 0), App.Vector(0, 0, 1), 5), math.radians(-90.000004), math.radians(0.000004)),  # 19
    Part.ArcOfCircle(Part.Circle(App.Vector(-35.738351, -284.70726, 0), App.Vector(0, 0, 1), 5), math.radians(-0.000004), math.radians(90.000004)),  # 20
    Part.ArcOfCircle(Part.Circle(App.Vector(-35.738351, -284.70726, 0), App.Vector(0, 0, 1), 5), math.radians(90), math.radians(270)),  # 21
    Part.ArcOfCircle(Part.Circle(App.Vector(-35.738351, -284.70726, 0), App.Vector(0, 0, 1), 5), math.radians(-90.000004), math.radians(0.000004)),  # 22
    Part.ArcOfCircle(Part.Circle(App.Vector(-35.738351, -184.70726, 0), App.Vector(0, 0, 1), 5), math.radians(-0.000004), math.radians(90.000004)),  # 23
    Part.ArcOfCircle(Part.Circle(App.Vector(-35.738351, -184.70726, 0), App.Vector(0, 0, 1), 5), math.radians(90), math.radians(270)),  # 24
    Part.ArcOfCircle(Part.Circle(App.Vector(-35.738351, -184.70726, 0), App.Vector(0, 0, 1), 5), math.radians(-90.000004), math.radians(0.000004)),  # 25
    Part.ArcOfCircle(Part.Circle(App.Vector(-35.738351, -84.70726, 0), App.Vector(0, 0, 1), 5), math.radians(-0.000004), math.radians(90.000004)),  # 26
    Part.ArcOfCircle(Part.Circle(App.Vector(-35.738351, -84.70726, 0), App.Vector(0, 0, 1), 5), math.radians(90), math.radians(270)),  # 27
    Part.ArcOfCircle(Part.Circle(App.Vector(-35.738351, -84.70726, 0), App.Vector(0, 0, 1), 5), math.radians(-90.000004), math.radians(0.000004)),  # 28
    Part.ArcOfCircle(Part.Circle(App.Vector(-35.738351, 15.29274, 0), App.Vector(0, 0, 1), 5), math.radians(-0.000004), math.radians(90.000004)),  # 29
    Part.ArcOfCircle(Part.Circle(App.Vector(-35.738351, 15.29274, 0), App.Vector(0, 0, 1), 5), math.radians(90), math.radians(270)),  # 30
    Part.ArcOfCircle(Part.Circle(App.Vector(-35.738351, 15.29274, 0), App.Vector(0, 0, 1), 5), math.radians(-90.000004), math.radians(0.000004)),  # 31
    Part.ArcOfCircle(Part.Circle(App.Vector(-35.738351, 115.29274, 0), App.Vector(0, 0, 1), 5), math.radians(-0.000004), math.radians(90.000004)),  # 32
    Part.ArcOfCircle(Part.Circle(App.Vector(-35.738351, 115.29274, 0), App.Vector(0, 0, 1), 5), math.radians(90), math.radians(270)),  # 33
    Part.ArcOfCircle(Part.Circle(App.Vector(-35.738351, 115.29274, 0), App.Vector(0, 0, 1), 5), math.radians(-90.000004), math.radians(0.000004)),  # 34
    Part.ArcOfCircle(Part.Circle(App.Vector(-35.738351, 215.29274, 0), App.Vector(0, 0, 1), 5), math.radians(-0.000004), math.radians(90.000004)),  # 35
    Part.ArcOfCircle(Part.Circle(App.Vector(-35.738351, 215.29274, 0), App.Vector(0, 0, 1), 5), math.radians(90), math.radians(270)),  # 36
    Part.ArcOfCircle(Part.Circle(App.Vector(-35.738351, 215.29274, 0), App.Vector(0, 0, 1), 5), math.radians(-90.000004), math.radians(0.000004)),  # 37
    Part.ArcOfCircle(Part.Circle(App.Vector(-35.738351, 315.29274, 0), App.Vector(0, 0, 1), 5), math.radians(-0.000004), math.radians(90.000004)),  # 38
    Part.ArcOfCircle(Part.Circle(App.Vector(-35.738351, 315.29274, 0), App.Vector(0, 0, 1), 5), math.radians(90), math.radians(270)),  # 39
    Part.ArcOfCircle(Part.Circle(App.Vector(-35.738351, 315.29274, 0), App.Vector(0, 0, 1), 5), math.radians(-90.000004), math.radians(0.000004)),  # 40
    Part.ArcOfCircle(Part.Circle(App.Vector(-35.738351, 415.29274, 0), App.Vector(0, 0, 1), 5), math.radians(-0.000004), math.radians(90.000004)),  # 41
    Part.ArcOfCircle(Part.Circle(App.Vector(-35.738351, 415.29274, 0), App.Vector(0, 0, 1), 5), math.radians(90), math.radians(270)),  # 42
    Part.ArcOfCircle(Part.Circle(App.Vector(-35.738351, 415.29274, 0), App.Vector(0, 0, 1), 5), math.radians(-90.000004), math.radians(0.000004)),  # 43
    Part.ArcOfCircle(Part.Circle(App.Vector(-35.738351, 515.29274, 0), App.Vector(0, 0, 1), 5), math.radians(-0.000004), math.radians(90.000004)),  # 44
    Part.ArcOfCircle(Part.Circle(App.Vector(-35.738351, 515.29274, 0), App.Vector(0, 0, 1), 5), math.radians(90), math.radians(270)),  # 45
    Part.ArcOfCircle(Part.Circle(App.Vector(-35.738351, 515.29274, 0), App.Vector(0, 0, 1), 5), math.radians(-90.000004), math.radians(0.000004)),  # 46
    Part.ArcOfCircle(Part.Circle(App.Vector(-35.738351, 615.29274, 0), App.Vector(0, 0, 1), 5), math.radians(-0.000004), math.radians(90.000004)),  # 47
    Part.ArcOfCircle(Part.Circle(App.Vector(-35.738351, 615.29274, 0), App.Vector(0, 0, 1), 5), math.radians(90), math.radians(270)),  # 48
    Part.ArcOfCircle(Part.Circle(App.Vector(-35.738351, 615.29274, 0), App.Vector(0, 0, 1), 5), math.radians(-90.000004), math.radians(0.000004)),  # 49
    Part.ArcOfCircle(Part.Circle(App.Vector(-35.738351, 715.29274, 0), App.Vector(0, 0, 1), 5), math.radians(-0.000004), math.radians(90.000004)),  # 50
    Part.ArcOfCircle(Part.Circle(App.Vector(-35.738351, 715.29274, 0), App.Vector(0, 0, 1), 5), math.radians(90), math.radians(270)),  # 51
    Part.ArcOfCircle(Part.Circle(App.Vector(-35.738351, 715.29274, 0), App.Vector(0, 0, 1), 5), math.radians(-90.000004), math.radians(0.000004)),  # 52
], False)
sketch2.addConstraint([
    Sketcher.Constraint("Tangent", 0, 2, 1, 1),
    Sketcher.Constraint("Tangent", 1, 2, 2, 1),
    Sketcher.Constraint("Tangent", 2, 2, 0, 1),
    Sketcher.Constraint("Tangent", 3, 1, 4, 2),
    Sketcher.Constraint("Coincident", 4, 1, 3, 2),
    Sketcher.Constraint("Tangent", 5, 2, 6, 1),
    Sketcher.Constraint("Tangent", 6, 2, 7, 1),
    Sketcher.Constraint("Tangent", 7, 2, 5, 1),
    Sketcher.Constraint("Tangent", 8, 2, 9, 1),
    Sketcher.Constraint("Tangent", 9, 2, 10, 1),
    Sketcher.Constraint("Tangent", 10, 2, 8, 1),
    Sketcher.Constraint("Tangent", 11, 2, 12, 1),
    Sketcher.Constraint("Tangent", 12, 2, 13, 1),
    Sketcher.Constraint("Tangent", 13, 2, 11, 1),
    Sketcher.Constraint("Tangent", 14, 2, 15, 1),
    Sketcher.Constraint("Tangent", 15, 2, 16, 1),
    Sketcher.Constraint("Tangent", 16, 2, 14, 1),
    Sketcher.Constraint("Tangent", 17, 2, 18, 1),
    Sketcher.Constraint("Tangent", 18, 2, 19, 1),
    Sketcher.Constraint("Tangent", 19, 2, 17, 1),
    Sketcher.Constraint("Tangent", 20, 2, 21, 1),
    Sketcher.Constraint("Tangent", 21, 2, 22, 1),
    Sketcher.Constraint("Tangent", 22, 2, 20, 1),
    Sketcher.Constraint("Tangent", 23, 2, 24, 1),
    Sketcher.Constraint("Tangent", 24, 2, 25, 1),
    Sketcher.Constraint("Tangent", 25, 2, 23, 1),
    Sketcher.Constraint("Tangent", 26, 2, 27, 1),
    Sketcher.Constraint("Tangent", 27, 2, 28, 1),
    Sketcher.Constraint("Tangent", 28, 2, 26, 1),
    Sketcher.Constraint("Tangent", 29, 2, 30, 1),
    Sketcher.Constraint("Tangent", 30, 2, 31, 1),
    Sketcher.Constraint("Tangent", 31, 2, 29, 1),
    Sketcher.Constraint("Tangent", 32, 2, 33, 1),
    Sketcher.Constraint("Tangent", 33, 2, 34, 1),
    Sketcher.Constraint("Tangent", 34, 2, 32, 1),
    Sketcher.Constraint("Tangent", 35, 2, 36, 1),
    Sketcher.Constraint("Tangent", 36, 2, 37, 1),
    Sketcher.Constraint("Tangent", 37, 2, 35, 1),
    Sketcher.Constraint("Tangent", 38, 2, 39, 1),
    Sketcher.Constraint("Tangent", 39, 2, 40, 1),
    Sketcher.Constraint("Tangent", 40, 2, 38, 1),
    Sketcher.Constraint("Tangent", 41, 2, 42, 1),
    Sketcher.Constraint("Tangent", 42, 2, 43, 1),
    Sketcher.Constraint("Tangent", 43, 2, 41, 1),
    Sketcher.Constraint("Tangent", 44, 2, 45, 1),
    Sketcher.Constraint("Tangent", 45, 2, 46, 1),
    Sketcher.Constraint("Tangent", 46, 2, 44, 1),
    Sketcher.Constraint("Tangent", 47, 2, 48, 1),
    Sketcher.Constraint("Tangent", 48, 2, 49, 1),
    Sketcher.Constraint("Tangent", 49, 2, 47, 1),
    Sketcher.Constraint("Tangent", 50, 2, 51, 1),
    Sketcher.Constraint("Tangent", 51, 2, 52, 1),
    Sketcher.Constraint("Tangent", 52, 2, 50, 1),
    Sketcher.Constraint("Equal", 2, 3),
    Sketcher.Constraint("Equal", 4, 5),
    Sketcher.Constraint("Equal", 7, 8),
    Sketcher.Constraint("Equal", 10, 11),
    Sketcher.Constraint("Equal", 13, 14),
    Sketcher.Constraint("Equal", 16, 17),
    Sketcher.Constraint("Equal", 19, 20),
    Sketcher.Constraint("Equal", 22, 23),
    Sketcher.Constraint("Equal", 25, 26),
    Sketcher.Constraint("Equal", 28, 29),
    Sketcher.Constraint("Equal", 31, 32),
    Sketcher.Constraint("Equal", 34, 35),
    Sketcher.Constraint("Equal", 37, 38),
    Sketcher.Constraint("Equal", 40, 41),
    Sketcher.Constraint("Equal", 43, 44),
    Sketcher.Constraint("Equal", 46, 47),
    Sketcher.Constraint("Equal", 49, 50),
    Sketcher.Constraint("Horizontal", 1, 3, 2, 2),
    Sketcher.Constraint("Horizontal", 4, 3, 3, 1),
    Sketcher.Constraint("Horizontal", 6, 3, 7, 2),
    Sketcher.Constraint("Horizontal", 9, 3, 10, 2),
    Sketcher.Constraint("Horizontal", 12, 3, 13, 2),
    Sketcher.Constraint("Horizontal", 15, 3, 16, 2),
    Sketcher.Constraint("Horizontal", 18, 3, 19, 2),
    Sketcher.Constraint("Horizontal", 21, 3, 22, 2),
    Sketcher.Constraint("Horizontal", 24, 3, 25, 2),
    Sketcher.Constraint("Horizontal", 27, 3, 28, 2),
    Sketcher.Constraint("Horizontal", 30, 3, 31, 2),
    Sketcher.Constraint("Horizontal", 33, 3, 34, 2),
    Sketcher.Constraint("Horizontal", 36, 3, 37, 2),
    Sketcher.Constraint("Horizontal", 39, 3, 40, 2),
    Sketcher.Constraint("Horizontal", 42, 3, 43, 2),
    Sketcher.Constraint("Horizontal", 45, 3, 46, 2),
    Sketcher.Constraint("Horizontal", 48, 3, 49, 2),
    Sketcher.Constraint("Horizontal", 51, 3, 52, 2),
    Sketcher.Constraint("Vertical", 2, 3, 3, 3),
    Sketcher.Constraint("Vertical", 4, 3, 5, 3),
    Sketcher.Constraint("Vertical", 7, 3, 8, 3),
    Sketcher.Constraint("Vertical", 10, 3, 11, 3),
    Sketcher.Constraint("Vertical", 13, 3, 14, 3),
    Sketcher.Constraint("Vertical", 16, 3, 17, 3),
    Sketcher.Constraint("Vertical", 19, 3, 20, 3),
    Sketcher.Constraint("Vertical", 22, 3, 23, 3),
    Sketcher.Constraint("Vertical", 25, 3, 26, 3),
    Sketcher.Constraint("Vertical", 28, 3, 29, 3),
    Sketcher.Constraint("Vertical", 31, 3, 32, 3),
    Sketcher.Constraint("Vertical", 34, 3, 35, 3),
    Sketcher.Constraint("Vertical", 37, 3, 38, 3),
    Sketcher.Constraint("Vertical", 40, 3, 41, 3),
    Sketcher.Constraint("Vertical", 43, 3, 44, 3),
    Sketcher.Constraint("Vertical", 46, 3, 47, 3),
    Sketcher.Constraint("Vertical", 49, 3, 50, 3),
    Sketcher.Constraint("Vertical", 52, 3, 0, 2),
    Sketcher.Constraint("Vertical", 0, 2, 1, 2),
    Sketcher.Constraint("Vertical", 1, 2, 4, 1),
    Sketcher.Constraint("Vertical", 4, 1, 5, 2),
    Sketcher.Constraint("Vertical", 5, 2, 6, 2),
    Sketcher.Constraint("Vertical", 6, 2, 8, 2),
    Sketcher.Constraint("Vertical", 8, 2, 9, 2),
    Sketcher.Constraint("Vertical", 9, 2, 11, 2),
    Sketcher.Constraint("Vertical", 11, 2, 12, 2),
    Sketcher.Constraint("Vertical", 12, 2, 14, 2),
    Sketcher.Constraint("Vertical", 14, 2, 15, 2),
    Sketcher.Constraint("Vertical", 15, 2, 17, 2),
    Sketcher.Constraint("Vertical", 17, 2, 18, 2),
    Sketcher.Constraint("Vertical", 18, 2, 20, 2),
    Sketcher.Constraint("Vertical", 20, 2, 21, 2),
    Sketcher.Constraint("Vertical", 21, 2, 23, 2),
    Sketcher.Constraint("Vertical", 23, 2, 24, 2),
    Sketcher.Constraint("Vertical", 24, 2, 26, 2),
    Sketcher.Constraint("Vertical", 26, 2, 27, 2),
    Sketcher.Constraint("Vertical", 27, 2, 29, 2),
    Sketcher.Constraint("Vertical", 29, 2, 30, 2),
    Sketcher.Constraint("Vertical", 30, 2, 32, 2),
    Sketcher.Constraint("Vertical", 32, 2, 33, 2),
    Sketcher.Constraint("Vertical", 33, 2, 35, 2),
    Sketcher.Constraint("Vertical", 35, 2, 36, 2),
    Sketcher.Constraint("Vertical", 36, 2, 38, 2),
    Sketcher.Constraint("Vertical", 38, 2, 39, 2),
    Sketcher.Constraint("Vertical", 39, 2, 41, 2),
    Sketcher.Constraint("Vertical", 41, 2, 42, 2),
    Sketcher.Constraint("Vertical", 42, 2, 44, 2),
    Sketcher.Constraint("Vertical", 44, 2, 45, 2),
    Sketcher.Constraint("Vertical", 45, 2, 47, 2),
    Sketcher.Constraint("Vertical", 47, 2, 48, 2),
    Sketcher.Constraint("Vertical", 48, 2, 50, 2),
    Sketcher.Constraint("Vertical", 50, 2, 51, 2),
    Sketcher.Constraint("Radius", 0, 5.0),
    Sketcher.Constraint("DistanceX", 0, 3, -1, 1, 35.738351),
    Sketcher.Constraint("DistanceY", -1, 1, 0, 3, 815.29274),
    Sketcher.Constraint("DistanceY", 3, 3, -1, 1, 884.70726),
    Sketcher.Constraint("DistanceY", 5, 3, -1, 1, 784.70726),
    Sketcher.Constraint("DistanceY", 8, 3, -1, 1, 684.70726),
    Sketcher.Constraint("DistanceY", 11, 3, -1, 1, 584.70726),
    Sketcher.Constraint("DistanceY", 14, 3, -1, 1, 484.70726),
    Sketcher.Constraint("DistanceY", 17, 3, -1, 1, 384.70726),
    Sketcher.Constraint("DistanceY", 20, 3, -1, 1, 284.70726),
    Sketcher.Constraint("DistanceY", 23, 3, -1, 1, 184.70726),
    Sketcher.Constraint("DistanceY", 26, 3, -1, 1, 84.70726),
    Sketcher.Constraint("DistanceY", -1, 1, 29, 3, 15.29274),
    Sketcher.Constraint("DistanceY", -1, 1, 32, 3, 115.29274),
    Sketcher.Constraint("DistanceY", -1, 1, 35, 3, 215.29274),
    Sketcher.Constraint("DistanceY", -1, 1, 38, 3, 315.29274),
    Sketcher.Constraint("DistanceY", -1, 1, 41, 3, 415.29274),
    Sketcher.Constraint("DistanceY", -1, 1, 44, 3, 515.29274),
    Sketcher.Constraint("DistanceY", -1, 1, 47, 3, 615.29274),
    Sketcher.Constraint("DistanceY", -1, 1, 50, 3, 715.29274),
])
pad2 = body2.newObject("PartDesign::Pad", "Pad001")
pad2.Profile = sketch2
pad2.Length = 1070
pad2.Midplane = True

doc.recompute()
